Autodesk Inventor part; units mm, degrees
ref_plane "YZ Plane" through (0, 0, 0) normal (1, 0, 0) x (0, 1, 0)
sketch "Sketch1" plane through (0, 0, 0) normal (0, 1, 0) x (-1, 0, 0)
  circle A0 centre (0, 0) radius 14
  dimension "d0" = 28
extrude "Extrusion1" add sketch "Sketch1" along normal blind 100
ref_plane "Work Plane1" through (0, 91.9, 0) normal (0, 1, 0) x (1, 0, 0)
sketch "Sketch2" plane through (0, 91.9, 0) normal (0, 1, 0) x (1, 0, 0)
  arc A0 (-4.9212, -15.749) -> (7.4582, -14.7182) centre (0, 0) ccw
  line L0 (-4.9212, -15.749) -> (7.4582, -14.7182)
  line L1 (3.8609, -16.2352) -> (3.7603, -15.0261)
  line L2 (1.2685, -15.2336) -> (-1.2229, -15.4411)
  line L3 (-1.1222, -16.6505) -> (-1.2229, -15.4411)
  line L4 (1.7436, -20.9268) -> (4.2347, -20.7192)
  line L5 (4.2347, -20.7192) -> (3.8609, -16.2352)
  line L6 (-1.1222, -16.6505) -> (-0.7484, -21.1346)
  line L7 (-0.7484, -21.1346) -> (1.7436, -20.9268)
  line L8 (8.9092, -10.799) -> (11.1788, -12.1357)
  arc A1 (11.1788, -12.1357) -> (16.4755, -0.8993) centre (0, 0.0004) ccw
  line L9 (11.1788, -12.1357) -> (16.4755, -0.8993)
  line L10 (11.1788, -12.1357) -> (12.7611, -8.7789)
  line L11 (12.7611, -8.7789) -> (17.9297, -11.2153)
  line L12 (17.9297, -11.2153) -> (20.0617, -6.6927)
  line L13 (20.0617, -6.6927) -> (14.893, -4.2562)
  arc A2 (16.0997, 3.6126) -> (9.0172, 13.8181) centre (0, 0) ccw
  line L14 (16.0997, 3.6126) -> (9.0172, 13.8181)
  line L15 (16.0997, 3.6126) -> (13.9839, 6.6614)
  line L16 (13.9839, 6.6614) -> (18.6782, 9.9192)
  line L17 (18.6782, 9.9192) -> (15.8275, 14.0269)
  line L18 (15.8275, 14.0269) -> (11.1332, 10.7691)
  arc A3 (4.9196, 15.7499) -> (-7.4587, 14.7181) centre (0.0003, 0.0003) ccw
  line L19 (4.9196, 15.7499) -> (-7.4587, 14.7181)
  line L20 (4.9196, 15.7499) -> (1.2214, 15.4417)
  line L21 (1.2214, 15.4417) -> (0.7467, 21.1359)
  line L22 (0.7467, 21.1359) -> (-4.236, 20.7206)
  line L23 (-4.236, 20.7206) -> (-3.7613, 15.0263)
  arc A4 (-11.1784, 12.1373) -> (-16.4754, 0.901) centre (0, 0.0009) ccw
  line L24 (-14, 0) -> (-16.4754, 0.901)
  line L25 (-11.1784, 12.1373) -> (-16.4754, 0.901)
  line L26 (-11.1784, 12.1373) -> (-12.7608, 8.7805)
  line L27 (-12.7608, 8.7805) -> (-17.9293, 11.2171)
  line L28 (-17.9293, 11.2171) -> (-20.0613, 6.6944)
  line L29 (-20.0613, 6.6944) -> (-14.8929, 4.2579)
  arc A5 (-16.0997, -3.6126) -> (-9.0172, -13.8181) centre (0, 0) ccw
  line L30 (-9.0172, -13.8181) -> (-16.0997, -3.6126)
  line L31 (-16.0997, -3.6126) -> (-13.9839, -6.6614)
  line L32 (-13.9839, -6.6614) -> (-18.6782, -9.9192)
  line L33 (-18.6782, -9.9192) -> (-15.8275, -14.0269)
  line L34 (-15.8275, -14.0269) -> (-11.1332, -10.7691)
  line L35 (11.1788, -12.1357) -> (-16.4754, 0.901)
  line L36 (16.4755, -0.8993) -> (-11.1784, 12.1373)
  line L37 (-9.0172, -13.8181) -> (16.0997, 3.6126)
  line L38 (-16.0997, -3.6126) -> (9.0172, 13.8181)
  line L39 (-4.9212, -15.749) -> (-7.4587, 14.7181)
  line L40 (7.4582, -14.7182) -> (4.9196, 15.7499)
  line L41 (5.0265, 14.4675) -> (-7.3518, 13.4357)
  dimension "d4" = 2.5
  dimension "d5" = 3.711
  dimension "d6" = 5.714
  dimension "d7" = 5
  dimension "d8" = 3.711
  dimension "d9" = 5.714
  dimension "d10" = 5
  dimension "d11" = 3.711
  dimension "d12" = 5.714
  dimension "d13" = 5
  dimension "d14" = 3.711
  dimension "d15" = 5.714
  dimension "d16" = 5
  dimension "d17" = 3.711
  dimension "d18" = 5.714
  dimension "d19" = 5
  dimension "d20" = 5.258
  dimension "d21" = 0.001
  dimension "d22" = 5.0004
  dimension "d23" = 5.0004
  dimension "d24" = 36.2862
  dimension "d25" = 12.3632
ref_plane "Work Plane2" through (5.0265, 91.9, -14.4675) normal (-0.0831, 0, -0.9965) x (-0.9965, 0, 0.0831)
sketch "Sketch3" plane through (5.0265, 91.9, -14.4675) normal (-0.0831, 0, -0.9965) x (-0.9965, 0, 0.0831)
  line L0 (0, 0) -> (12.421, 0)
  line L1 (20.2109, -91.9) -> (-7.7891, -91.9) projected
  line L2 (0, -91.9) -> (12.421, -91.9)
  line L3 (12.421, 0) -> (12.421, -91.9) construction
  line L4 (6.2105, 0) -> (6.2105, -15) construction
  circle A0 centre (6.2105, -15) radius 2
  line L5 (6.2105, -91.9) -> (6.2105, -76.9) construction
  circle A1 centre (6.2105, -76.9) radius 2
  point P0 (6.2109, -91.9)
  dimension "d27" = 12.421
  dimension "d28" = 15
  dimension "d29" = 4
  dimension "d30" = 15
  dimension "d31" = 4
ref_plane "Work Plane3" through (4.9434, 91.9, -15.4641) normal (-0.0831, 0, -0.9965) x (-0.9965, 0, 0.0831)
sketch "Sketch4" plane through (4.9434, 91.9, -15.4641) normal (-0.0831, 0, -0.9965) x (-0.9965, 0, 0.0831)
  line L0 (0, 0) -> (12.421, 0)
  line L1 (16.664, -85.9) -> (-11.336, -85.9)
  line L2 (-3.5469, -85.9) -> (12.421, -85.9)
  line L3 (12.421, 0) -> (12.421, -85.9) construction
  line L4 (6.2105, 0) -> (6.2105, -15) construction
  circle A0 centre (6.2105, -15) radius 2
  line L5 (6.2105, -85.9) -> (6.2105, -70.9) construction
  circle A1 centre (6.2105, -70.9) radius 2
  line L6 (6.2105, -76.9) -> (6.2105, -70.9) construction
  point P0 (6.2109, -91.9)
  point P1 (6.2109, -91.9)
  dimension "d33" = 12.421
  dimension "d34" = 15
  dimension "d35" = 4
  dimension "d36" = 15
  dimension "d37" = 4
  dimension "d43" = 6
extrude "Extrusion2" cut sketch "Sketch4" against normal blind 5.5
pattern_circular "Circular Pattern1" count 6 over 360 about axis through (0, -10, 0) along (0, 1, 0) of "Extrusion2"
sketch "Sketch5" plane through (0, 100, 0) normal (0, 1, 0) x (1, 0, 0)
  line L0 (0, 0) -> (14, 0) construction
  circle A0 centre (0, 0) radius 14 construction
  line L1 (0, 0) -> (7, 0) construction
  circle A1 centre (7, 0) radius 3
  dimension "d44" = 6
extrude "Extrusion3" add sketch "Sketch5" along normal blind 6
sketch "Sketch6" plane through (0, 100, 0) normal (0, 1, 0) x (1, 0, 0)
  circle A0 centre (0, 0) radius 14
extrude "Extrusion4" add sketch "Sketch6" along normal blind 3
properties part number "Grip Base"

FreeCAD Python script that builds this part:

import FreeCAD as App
import Part
import Sketcher

V = App.Vector
Q = App.Units.Quantity

doc = App.newDocument("Part")
body = doc.addObject("PartDesign::Body", "Body")

# Sketch on XZ plane
sketch1 = doc.addObject("Sketcher::SketchObject", "Sketch")
body.addObject(sketch1)
sketch1.AttachmentSupport = (doc.XZ_Plane, [""])
sketch1.MapMode = "FlatFace"
sketch1.addGeometry(Part.Circle(V(0, 0, 0), V(0, 0, 1), 14), False)
sketch1.addConstraint(Sketcher.Constraint("Coincident", 0, 3, -1, 1))
sketch1.addConstraint(Sketcher.Constraint("Diameter", 0, Q("28 mm")))
pad1 = doc.addObject("PartDesign::Pad", "Pad")
body.addObject(pad1)
pad1.Profile = sketch1
pad1.Length = 100
pad1.Reversed = True

# Sketch on an angled plane
sketch2 = doc.addObject("Sketcher::SketchObject", "Sketch001")
body.addObject(sketch2)
sketch2.Placement = App.Placement(V(4.9434, 91.9, -15.4641), App.Rotation(V(-0.996540929, 0, 0.083103413), V(0, 1, 0), V(-0.083103413, 0, -0.996540929), "ZXY"))
sketch2.addGeometry(Part.Circle(V(6.2, -15, 0), V(0, 0, 1), 2), False)
sketch2.addGeometry(Part.Circle(V(6.2, -70.9, 0), V(0, 0, 1), 2), False)
sketch2.addConstraint(Sketcher.Constraint("Equal", 0, 1))
sketch2.addConstraint(Sketcher.Constraint("Vertical", 0, 3, 1, 3))
sketch2.addConstraint(Sketcher.Constraint("Diameter", 0, Q("4 mm")))
sketch2.addConstraint(Sketcher.Constraint("DistanceY", 0, 3, -1, 1, Q("15 mm")))
sketch2.addConstraint(Sketcher.Constraint("DistanceY", 1, 3, -1, 1, Q("70.9 mm")))
sketch2.addConstraint(Sketcher.Constraint("DistanceX", -1, 1, 0, 3, Q("6.2105 mm")))
pocket1 = doc.addObject("PartDesign::Pocket", "Pocket")
body.addObject(pocket1)
pocket1.Profile = sketch2
pocket1.Length = 5.5
doc.recompute()

polarpattern = doc.addObject("PartDesign::PolarPattern", "PolarPattern")
body.addObject(polarpattern)
polarpattern.Originals = [pocket1]
polarpattern.Axis = (doc.Y_Axis, [""])
polarpattern.Angle = 360
polarpattern.Occurrences = 6
body.Tip = polarpattern

# Sketch on XZ plane
sketch3 = doc.addObject("Sketcher::SketchObject", "Sketch002")
body.addObject(sketch3)
sketch3.AttachmentSupport = (doc.XZ_Plane, [""])
sketch3.MapMode = "FlatFace"
sketch3.AttachmentOffset = App.Placement(V(0, 0, -100), App.Rotation())
sketch3.addGeometry(Part.Circle(V(7, 0, 0), V(0, 0, 1), 3), False)
sketch3.addConstraint(Sketcher.Constraint("PointOnObject", 0, 3, -1))
sketch3.addConstraint(Sketcher.Constraint("Diameter", 0, Q("6 mm")))
sketch3.addConstraint(Sketcher.Constraint("DistanceX", -1, 1, 0, 3, Q("7 mm")))
pad2 = doc.addObject("PartDesign::Pad", "Pad001")
body.addObject(pad2)
pad2.Profile = sketch3
pad2.Length = 6
pad2.Reversed = True

# Sketch on XZ plane
sketch4 = doc.addObject("Sketcher::SketchObject", "Sketch003")
body.addObject(sketch4)
sketch4.AttachmentSupport = (doc.XZ_Plane, [""])
sketch4.MapMode = "FlatFace"
sketch4.AttachmentOffset = App.Placement(V(0, 0, -100), App.Rotation())
sketch4.addGeometry(Part.Circle(V(0, 0, 0), V(0, 0, 1), 14), False)
sketch4.addConstraint(Sketcher.Constraint("Coincident", 0, 3, -1, 1))
sketch4.addConstraint(Sketcher.Constraint("Diameter", 0, Q("28 mm")))
pad3 = doc.addObject("PartDesign::Pad", "Pad002")
body.addObject(pad3)
pad3.Profile = sketch4
pad3.Length = 3
pad3.Reversed = True

doc.recompute()
